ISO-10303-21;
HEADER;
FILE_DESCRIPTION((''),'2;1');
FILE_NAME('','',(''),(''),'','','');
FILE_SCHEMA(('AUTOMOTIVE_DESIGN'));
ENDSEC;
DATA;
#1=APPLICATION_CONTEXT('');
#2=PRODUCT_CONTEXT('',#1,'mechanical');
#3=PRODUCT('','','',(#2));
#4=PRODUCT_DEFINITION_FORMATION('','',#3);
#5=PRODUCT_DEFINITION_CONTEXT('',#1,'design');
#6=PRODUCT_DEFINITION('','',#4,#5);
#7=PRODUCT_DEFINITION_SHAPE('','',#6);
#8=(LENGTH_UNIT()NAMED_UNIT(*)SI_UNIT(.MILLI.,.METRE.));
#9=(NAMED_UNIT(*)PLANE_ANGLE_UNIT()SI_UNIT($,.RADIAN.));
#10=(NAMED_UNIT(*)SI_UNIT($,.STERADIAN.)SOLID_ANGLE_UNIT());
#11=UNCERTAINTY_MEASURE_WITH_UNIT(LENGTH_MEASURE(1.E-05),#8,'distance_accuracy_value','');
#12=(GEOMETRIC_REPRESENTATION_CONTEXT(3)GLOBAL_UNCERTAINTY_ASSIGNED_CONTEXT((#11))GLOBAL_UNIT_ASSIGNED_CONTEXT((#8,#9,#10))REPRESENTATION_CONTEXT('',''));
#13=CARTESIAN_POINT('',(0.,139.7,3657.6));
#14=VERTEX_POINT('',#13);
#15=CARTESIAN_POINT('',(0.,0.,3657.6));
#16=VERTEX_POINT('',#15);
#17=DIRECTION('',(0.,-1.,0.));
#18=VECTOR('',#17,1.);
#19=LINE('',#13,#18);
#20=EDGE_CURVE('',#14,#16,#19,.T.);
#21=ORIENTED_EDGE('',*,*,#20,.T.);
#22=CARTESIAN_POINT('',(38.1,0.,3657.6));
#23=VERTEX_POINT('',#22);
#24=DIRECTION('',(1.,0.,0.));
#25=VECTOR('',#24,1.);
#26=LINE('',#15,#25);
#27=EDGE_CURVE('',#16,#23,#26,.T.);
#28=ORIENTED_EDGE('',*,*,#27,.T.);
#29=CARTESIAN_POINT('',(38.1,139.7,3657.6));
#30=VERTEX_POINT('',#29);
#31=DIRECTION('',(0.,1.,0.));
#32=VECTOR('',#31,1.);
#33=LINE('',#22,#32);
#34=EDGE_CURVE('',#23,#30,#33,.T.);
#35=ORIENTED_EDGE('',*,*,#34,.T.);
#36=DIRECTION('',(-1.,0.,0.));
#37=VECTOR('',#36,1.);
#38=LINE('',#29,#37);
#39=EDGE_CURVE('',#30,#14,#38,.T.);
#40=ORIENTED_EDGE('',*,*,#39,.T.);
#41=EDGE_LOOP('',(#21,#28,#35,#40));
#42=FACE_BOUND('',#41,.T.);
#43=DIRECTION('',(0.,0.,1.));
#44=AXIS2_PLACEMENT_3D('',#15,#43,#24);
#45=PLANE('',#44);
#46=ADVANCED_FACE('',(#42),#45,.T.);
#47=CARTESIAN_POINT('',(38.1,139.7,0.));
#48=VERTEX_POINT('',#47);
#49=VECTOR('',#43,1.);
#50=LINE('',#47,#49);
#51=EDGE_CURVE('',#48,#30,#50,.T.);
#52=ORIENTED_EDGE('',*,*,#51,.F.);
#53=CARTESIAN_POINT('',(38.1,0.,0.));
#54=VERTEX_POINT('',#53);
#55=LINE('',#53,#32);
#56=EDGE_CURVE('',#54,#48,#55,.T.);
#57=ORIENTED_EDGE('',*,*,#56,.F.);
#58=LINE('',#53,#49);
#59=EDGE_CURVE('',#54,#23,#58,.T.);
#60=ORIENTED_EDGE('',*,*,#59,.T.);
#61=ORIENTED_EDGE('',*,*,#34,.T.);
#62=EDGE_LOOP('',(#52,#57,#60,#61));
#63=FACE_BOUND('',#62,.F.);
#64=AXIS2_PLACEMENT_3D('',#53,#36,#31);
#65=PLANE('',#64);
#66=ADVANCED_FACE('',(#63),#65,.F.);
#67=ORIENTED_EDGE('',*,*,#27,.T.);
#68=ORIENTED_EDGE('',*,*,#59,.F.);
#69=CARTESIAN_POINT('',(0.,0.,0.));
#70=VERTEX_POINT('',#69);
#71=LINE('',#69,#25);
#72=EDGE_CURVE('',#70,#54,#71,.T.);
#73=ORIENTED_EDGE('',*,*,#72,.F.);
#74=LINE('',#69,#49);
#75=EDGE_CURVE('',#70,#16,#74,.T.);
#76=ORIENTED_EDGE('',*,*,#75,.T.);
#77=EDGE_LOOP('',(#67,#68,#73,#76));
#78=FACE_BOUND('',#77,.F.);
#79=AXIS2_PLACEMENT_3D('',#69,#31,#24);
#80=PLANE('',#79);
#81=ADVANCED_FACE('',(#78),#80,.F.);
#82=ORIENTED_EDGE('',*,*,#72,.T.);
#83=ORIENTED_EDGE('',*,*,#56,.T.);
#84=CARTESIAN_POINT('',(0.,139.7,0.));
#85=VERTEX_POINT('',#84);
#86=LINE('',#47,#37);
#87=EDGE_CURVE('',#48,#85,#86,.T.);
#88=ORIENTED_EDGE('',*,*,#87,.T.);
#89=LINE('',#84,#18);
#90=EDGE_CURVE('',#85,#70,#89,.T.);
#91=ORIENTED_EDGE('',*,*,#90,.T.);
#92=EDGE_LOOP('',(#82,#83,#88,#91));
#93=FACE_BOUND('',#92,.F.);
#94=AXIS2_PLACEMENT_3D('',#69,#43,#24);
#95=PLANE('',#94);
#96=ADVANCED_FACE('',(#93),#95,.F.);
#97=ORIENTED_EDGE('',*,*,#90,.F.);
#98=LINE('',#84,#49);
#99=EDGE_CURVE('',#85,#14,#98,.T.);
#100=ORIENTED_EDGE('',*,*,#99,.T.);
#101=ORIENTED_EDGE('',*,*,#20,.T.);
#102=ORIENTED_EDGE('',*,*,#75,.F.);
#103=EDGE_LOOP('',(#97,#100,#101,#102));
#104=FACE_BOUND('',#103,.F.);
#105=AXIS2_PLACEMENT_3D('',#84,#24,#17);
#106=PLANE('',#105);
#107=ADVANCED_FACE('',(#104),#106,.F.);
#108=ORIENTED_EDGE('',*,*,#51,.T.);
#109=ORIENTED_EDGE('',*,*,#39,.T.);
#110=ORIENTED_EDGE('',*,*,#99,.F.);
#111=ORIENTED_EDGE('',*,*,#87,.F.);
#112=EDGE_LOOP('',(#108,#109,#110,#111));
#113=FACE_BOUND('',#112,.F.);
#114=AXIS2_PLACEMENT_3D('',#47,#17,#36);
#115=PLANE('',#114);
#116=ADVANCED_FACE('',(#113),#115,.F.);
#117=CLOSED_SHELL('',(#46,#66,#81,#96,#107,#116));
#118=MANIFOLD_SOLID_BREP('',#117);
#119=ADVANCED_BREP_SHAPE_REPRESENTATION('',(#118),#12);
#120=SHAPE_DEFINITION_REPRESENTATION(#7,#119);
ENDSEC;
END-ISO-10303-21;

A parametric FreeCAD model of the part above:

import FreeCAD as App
import Part
import Sketcher
Q = App.Units.Quantity


def add_polygon(sketch, points):
    """Adds a closed chain of lines whose ends are joined by coincident constraints."""
    first, n = sketch.GeometryCount, len(points)
    for a, b in zip(points, points[1:] + points[:1]):
        sketch.addGeometry(Part.LineSegment(App.Vector(*a, 0), App.Vector(*b, 0)), False)
    for i in range(n):
        sketch.addConstraint(Sketcher.Constraint("Coincident", first + i, 2, first + (i + 1) % n, 1))

doc = App.newDocument("Part")
params = doc.addObject("Spreadsheet::Sheet", "Params")
for row, (alias, value) in enumerate([
    ("sketch1_width", "1.5 in"),
    ("sketch1_height", "5.5 in"),
    ("pad1_length", "144 in"),
], start=1):
    params.set(f"A{row}", alias)
    params.set(f"B{row}", "=" + value)
    params.setAlias(f"B{row}", alias)

body = doc.addObject("PartDesign::Body", "Body")

# Sketch on XY plane
sketch1 = body.newObject("Sketcher::SketchObject", "Sketch")
sketch1.AttachmentSupport = (doc.getObject("XY_Plane"), [""])
sketch1.MapMode = "FlatFace"
add_polygon(sketch1, [(0, 139.7), (0, 0), (38.1, 0), (38.1, 139.7)])  # lines 0-3
sketch1.addConstraint([
    Sketcher.Constraint("Vertical", 0),
    Sketcher.Constraint("Horizontal", 1),
    Sketcher.Constraint("Vertical", 2),
    Sketcher.Constraint("Horizontal", 3),
    Sketcher.Constraint("Coincident", 0, 2, -1, 1),
    Sketcher.Constraint("DistanceX", 1, 1, 1, 2, Q("1.5 in")),
    Sketcher.Constraint("DistanceY", 0, 2, 0, 1, Q("5.5 in")),
])
sketch1.setExpression("Constraints[9]", "Params.sketch1_width")
sketch1.setExpression("Constraints[10]", "Params.sketch1_height")
pad1 = body.newObject("PartDesign::Pad", "Pad")
pad1.Profile = sketch1
pad1.setExpression("Length", "Params.pad1_length")

doc.recompute()
